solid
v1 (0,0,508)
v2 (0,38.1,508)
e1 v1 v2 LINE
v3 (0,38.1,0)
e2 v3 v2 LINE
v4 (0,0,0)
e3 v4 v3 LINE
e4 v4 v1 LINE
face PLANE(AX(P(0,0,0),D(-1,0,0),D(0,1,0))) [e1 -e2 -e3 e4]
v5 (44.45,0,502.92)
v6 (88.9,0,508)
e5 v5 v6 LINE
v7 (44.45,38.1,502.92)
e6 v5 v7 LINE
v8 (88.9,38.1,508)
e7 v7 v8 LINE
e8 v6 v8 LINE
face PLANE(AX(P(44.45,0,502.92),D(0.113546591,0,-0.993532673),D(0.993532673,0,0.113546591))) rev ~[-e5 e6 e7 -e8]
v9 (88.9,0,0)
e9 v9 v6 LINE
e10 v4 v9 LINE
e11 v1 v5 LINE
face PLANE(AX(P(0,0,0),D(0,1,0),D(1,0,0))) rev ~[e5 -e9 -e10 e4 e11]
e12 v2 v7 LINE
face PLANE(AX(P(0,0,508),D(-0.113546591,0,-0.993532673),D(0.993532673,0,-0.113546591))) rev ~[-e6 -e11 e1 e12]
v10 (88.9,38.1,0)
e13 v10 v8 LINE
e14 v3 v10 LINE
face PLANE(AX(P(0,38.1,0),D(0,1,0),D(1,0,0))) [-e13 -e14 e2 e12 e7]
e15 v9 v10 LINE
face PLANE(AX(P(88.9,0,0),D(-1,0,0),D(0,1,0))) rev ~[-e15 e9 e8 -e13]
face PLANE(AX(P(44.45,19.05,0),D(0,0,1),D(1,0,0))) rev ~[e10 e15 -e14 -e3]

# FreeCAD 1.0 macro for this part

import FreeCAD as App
import Part
import Sketcher
Q = App.Units.Quantity

doc = App.newDocument("Part")
body = doc.addObject("PartDesign::Body", "Body")

# Sketch on XY plane
sketch1 = body.newObject("Sketcher::SketchObject", "Sketch")
sketch1.AttachmentSupport = (doc.getObject("XY_Plane"), [""])
sketch1.MapMode = "FlatFace"
sketch1.addGeometry(Part.LineSegment(App.Vector(0, 38.1, 0), App.Vector(0, 0, 0)), False)
sketch1.addGeometry(Part.LineSegment(App.Vector(0, 0, 0), App.Vector(88.9, 0, 0)), False)
sketch1.addGeometry(Part.LineSegment(App.Vector(88.9, 0, 0), App.Vector(88.9, 38.1, 0)), False)
sketch1.addGeometry(Part.LineSegment(App.Vector(88.9, 38.1, 0), App.Vector(0, 38.1, 0)), False)
sketch1.addConstraint(Sketcher.Constraint("Coincident", 0, 2, 1, 1))
sketch1.addConstraint(Sketcher.Constraint("Coincident", 1, 2, 2, 1))
sketch1.addConstraint(Sketcher.Constraint("Coincident", 2, 2, 3, 1))
sketch1.addConstraint(Sketcher.Constraint("Coincident", 3, 2, 0, 1))
sketch1.addConstraint(Sketcher.Constraint("Vertical", 0))
sketch1.addConstraint(Sketcher.Constraint("Horizontal", 1))
sketch1.addConstraint(Sketcher.Constraint("Vertical", 2))
sketch1.addConstraint(Sketcher.Constraint("Horizontal", 3))
sketch1.addConstraint(Sketcher.Constraint("Coincident", 0, 2, -1, 1))
sketch1.addConstraint(Sketcher.Constraint("DistanceX", 1, 1, 1, 2, Q("3.5 in")))
sketch1.addConstraint(Sketcher.Constraint("DistanceY", 0, 2, 0, 1, Q("1.5 in")))
pad1 = body.newObject("PartDesign::Pad", "Pad")
pad1.Profile = sketch1
pad1.Length = Q("20 in")

# Sketch on XZ plane
sketch2 = body.newObject("Sketcher::SketchObject", "Sketch001")
sketch2.AttachmentSupport = (doc.getObject("XZ_Plane"), [""])
sketch2.MapMode = "FlatFace"
sketch2.addGeometry(Part.LineSegment(App.Vector(88.9, 508, 0), App.Vector(0, 508, 0)), False)
sketch2.addGeometry(Part.LineSegment(App.Vector(0, 508, 0), App.Vector(44.45, 502.92, 0)), False)
sketch2.addGeometry(Part.LineSegment(App.Vector(44.45, 502.92, 0), App.Vector(88.9, 508, 0)), False)
sketch2.addConstraint(Sketcher.Constraint("Coincident", 0, 2, 1, 1))
sketch2.addConstraint(Sketcher.Constraint("Coincident", 1, 2, 2, 1))
sketch2.addConstraint(Sketcher.Constraint("Coincident", 2, 2, 0, 1))
sketch2.addConstraint(Sketcher.Constraint("Horizontal", 0))
sketch2.addConstraint(Sketcher.Constraint("PointOnObject", 0, 2, -2))
sketch2.addConstraint(Sketcher.Constraint("Equal", 1, 2))
sketch2.addConstraint(Sketcher.Constraint("DistanceX", 0, 2, 0, 1, Q("3.5 in")))
sketch2.addConstraint(Sketcher.Constraint("DistanceY", -1, 1, 0, 2, Q("20 in")))
sketch2.addConstraint(Sketcher.Constraint("DistanceY", -1, 1, 1, 2, Q("19.8 in")))
pocket1 = body.newObject("PartDesign::Pocket", "Pocket")
pocket1.Profile = sketch2
pocket1.Type = "ThroughAll"

doc.recompute()
